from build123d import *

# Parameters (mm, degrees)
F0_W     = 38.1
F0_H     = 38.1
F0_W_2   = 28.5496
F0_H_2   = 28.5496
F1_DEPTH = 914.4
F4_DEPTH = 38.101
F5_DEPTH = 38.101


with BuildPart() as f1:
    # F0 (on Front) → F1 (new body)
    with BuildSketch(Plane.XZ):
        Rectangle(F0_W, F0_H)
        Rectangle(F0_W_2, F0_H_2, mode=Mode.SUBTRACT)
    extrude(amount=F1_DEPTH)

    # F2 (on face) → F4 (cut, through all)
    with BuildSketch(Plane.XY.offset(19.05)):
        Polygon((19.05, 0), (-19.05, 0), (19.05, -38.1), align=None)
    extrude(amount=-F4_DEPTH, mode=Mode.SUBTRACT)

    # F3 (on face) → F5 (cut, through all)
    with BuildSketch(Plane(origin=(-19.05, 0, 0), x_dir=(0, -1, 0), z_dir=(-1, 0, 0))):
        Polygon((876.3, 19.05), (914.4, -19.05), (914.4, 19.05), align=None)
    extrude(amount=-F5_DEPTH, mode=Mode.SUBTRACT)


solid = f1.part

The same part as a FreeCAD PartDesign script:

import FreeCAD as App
import Part
import Sketcher
Q = App.Units.Quantity


def add_polygon(sketch, points):
    """Adds a closed chain of lines whose ends are joined by coincident constraints."""
    first, n = sketch.GeometryCount, len(points)
    for a, b in zip(points, points[1:] + points[:1]):
        sketch.addGeometry(Part.LineSegment(App.Vector(*a, 0), App.Vector(*b, 0)), False)
    for i in range(n):
        sketch.addConstraint(Sketcher.Constraint("Coincident", first + i, 2, first + (i + 1) % n, 1))

doc = App.newDocument("Part")
body = doc.addObject("PartDesign::Body", "Body")

sketch1 = doc.addObject("Sketcher::SketchObject", "Sketch")
body.addObject(sketch1)
sketch1.AttachmentSupport = (doc.XZ_Plane, [""])
sketch1.MapMode = "FlatFace"
add_polygon(sketch1, [(-19.05, 19.05), (-19.05, -19.05), (19.05, -19.05), (19.05, 19.05)])
add_polygon(sketch1, [(14.2748, -14.2748), (-14.2748, -14.2748), (-14.2748, 14.2748), (14.2748, 14.2748)])
sketch1.addConstraint(Sketcher.Constraint("Vertical", 0))
sketch1.addConstraint(Sketcher.Constraint("Horizontal", 1))
sketch1.addConstraint(Sketcher.Constraint("Vertical", 2))
sketch1.addConstraint(Sketcher.Constraint("Horizontal", 3))
sketch1.addConstraint(Sketcher.Constraint("Horizontal", 4))
sketch1.addConstraint(Sketcher.Constraint("Vertical", 5))
sketch1.addConstraint(Sketcher.Constraint("Horizontal", 6))
sketch1.addConstraint(Sketcher.Constraint("Vertical", 7))
sketch1.addConstraint(Sketcher.Constraint("Symmetric", 0, 2, 2, 2, -1, 1))
sketch1.addConstraint(Sketcher.Constraint("Symmetric", 4, 2, 6, 2, -1, 1))
sketch1.addConstraint(Sketcher.Constraint("Equal", 3, 0))
sketch1.addConstraint(Sketcher.Constraint("Equal", 6, 5))
sketch1.addConstraint(Sketcher.Constraint("DistanceX", 1, 1, 1, 2, Q("1.5 in")))
sketch1.addConstraint(Sketcher.Constraint("DistanceX", 4, 2, 4, 1, Q("1.124 in")))
pad1 = doc.addObject("PartDesign::Pad", "Pad")
body.addObject(pad1)
pad1.Profile = sketch1
pad1.Length = Q("36 in")

sketch2 = doc.addObject("Sketcher::SketchObject", "Sketch001")
body.addObject(sketch2)
sketch2.AttachmentSupport = (doc.XY_Plane, [""])
sketch2.MapMode = "FlatFace"
sketch2.AttachmentOffset = App.Placement(App.Vector(0, 0, 0.75 * 25.4), App.Rotation())
add_polygon(sketch2, [(19.05, 0), (-19.05, 0), (19.05, -38.1)])
sketch2.addConstraint(Sketcher.Constraint("Horizontal", 0))
sketch2.addConstraint(Sketcher.Constraint("Vertical", 2))
sketch2.addConstraint(Sketcher.Constraint("Symmetric", 0, 2, 2, 2, -1, 1))
sketch2.addConstraint(Sketcher.Constraint("Equal", 0, 2))
sketch2.addConstraint(Sketcher.Constraint("DistanceX", 0, 2, 0, 1, Q("1.5 in")))
pocket1 = doc.addObject("PartDesign::Pocket", "Pocket")
body.addObject(pocket1)
pocket1.Profile = sketch2
pocket1.Type = "ThroughAll"

sketch3 = doc.addObject("Sketcher::SketchObject", "Sketch002")
body.addObject(sketch3)
sketch3.AttachmentSupport = (doc.YZ_Plane, [""])
sketch3.MapMode = "FlatFace"
sketch3.AttachmentOffset = App.Placement(App.Vector(0, 0, -0.75 * 25.4), App.Rotation())
add_polygon(sketch3, [(-876.3, 19.05), (-914.4, -19.05), (-914.4, 19.05)])
sketch3.addConstraint(Sketcher.Constraint("Vertical", 1))
sketch3.addConstraint(Sketcher.Constraint("Horizontal", 2))
sketch3.addConstraint(Sketcher.Constraint("Equal", 2, 1))
sketch3.addConstraint(Sketcher.Constraint("DistanceX", 2, 1, 2, 2, Q("1.5 in")))
sketch3.addConstraint(Sketcher.Constraint("DistanceX", 0, 2, -1, 1, Q("36 in")))
sketch3.addConstraint(Sketcher.Constraint("DistanceY", 0, 2, -1, 1, Q("0.75 in")))
pocket2 = doc.addObject("PartDesign::Pocket", "Pocket001")
body.addObject(pocket2)
pocket2.Profile = sketch3
pocket2.Type = "ThroughAll"
pocket2.Reversed = True

doc.recompute()
